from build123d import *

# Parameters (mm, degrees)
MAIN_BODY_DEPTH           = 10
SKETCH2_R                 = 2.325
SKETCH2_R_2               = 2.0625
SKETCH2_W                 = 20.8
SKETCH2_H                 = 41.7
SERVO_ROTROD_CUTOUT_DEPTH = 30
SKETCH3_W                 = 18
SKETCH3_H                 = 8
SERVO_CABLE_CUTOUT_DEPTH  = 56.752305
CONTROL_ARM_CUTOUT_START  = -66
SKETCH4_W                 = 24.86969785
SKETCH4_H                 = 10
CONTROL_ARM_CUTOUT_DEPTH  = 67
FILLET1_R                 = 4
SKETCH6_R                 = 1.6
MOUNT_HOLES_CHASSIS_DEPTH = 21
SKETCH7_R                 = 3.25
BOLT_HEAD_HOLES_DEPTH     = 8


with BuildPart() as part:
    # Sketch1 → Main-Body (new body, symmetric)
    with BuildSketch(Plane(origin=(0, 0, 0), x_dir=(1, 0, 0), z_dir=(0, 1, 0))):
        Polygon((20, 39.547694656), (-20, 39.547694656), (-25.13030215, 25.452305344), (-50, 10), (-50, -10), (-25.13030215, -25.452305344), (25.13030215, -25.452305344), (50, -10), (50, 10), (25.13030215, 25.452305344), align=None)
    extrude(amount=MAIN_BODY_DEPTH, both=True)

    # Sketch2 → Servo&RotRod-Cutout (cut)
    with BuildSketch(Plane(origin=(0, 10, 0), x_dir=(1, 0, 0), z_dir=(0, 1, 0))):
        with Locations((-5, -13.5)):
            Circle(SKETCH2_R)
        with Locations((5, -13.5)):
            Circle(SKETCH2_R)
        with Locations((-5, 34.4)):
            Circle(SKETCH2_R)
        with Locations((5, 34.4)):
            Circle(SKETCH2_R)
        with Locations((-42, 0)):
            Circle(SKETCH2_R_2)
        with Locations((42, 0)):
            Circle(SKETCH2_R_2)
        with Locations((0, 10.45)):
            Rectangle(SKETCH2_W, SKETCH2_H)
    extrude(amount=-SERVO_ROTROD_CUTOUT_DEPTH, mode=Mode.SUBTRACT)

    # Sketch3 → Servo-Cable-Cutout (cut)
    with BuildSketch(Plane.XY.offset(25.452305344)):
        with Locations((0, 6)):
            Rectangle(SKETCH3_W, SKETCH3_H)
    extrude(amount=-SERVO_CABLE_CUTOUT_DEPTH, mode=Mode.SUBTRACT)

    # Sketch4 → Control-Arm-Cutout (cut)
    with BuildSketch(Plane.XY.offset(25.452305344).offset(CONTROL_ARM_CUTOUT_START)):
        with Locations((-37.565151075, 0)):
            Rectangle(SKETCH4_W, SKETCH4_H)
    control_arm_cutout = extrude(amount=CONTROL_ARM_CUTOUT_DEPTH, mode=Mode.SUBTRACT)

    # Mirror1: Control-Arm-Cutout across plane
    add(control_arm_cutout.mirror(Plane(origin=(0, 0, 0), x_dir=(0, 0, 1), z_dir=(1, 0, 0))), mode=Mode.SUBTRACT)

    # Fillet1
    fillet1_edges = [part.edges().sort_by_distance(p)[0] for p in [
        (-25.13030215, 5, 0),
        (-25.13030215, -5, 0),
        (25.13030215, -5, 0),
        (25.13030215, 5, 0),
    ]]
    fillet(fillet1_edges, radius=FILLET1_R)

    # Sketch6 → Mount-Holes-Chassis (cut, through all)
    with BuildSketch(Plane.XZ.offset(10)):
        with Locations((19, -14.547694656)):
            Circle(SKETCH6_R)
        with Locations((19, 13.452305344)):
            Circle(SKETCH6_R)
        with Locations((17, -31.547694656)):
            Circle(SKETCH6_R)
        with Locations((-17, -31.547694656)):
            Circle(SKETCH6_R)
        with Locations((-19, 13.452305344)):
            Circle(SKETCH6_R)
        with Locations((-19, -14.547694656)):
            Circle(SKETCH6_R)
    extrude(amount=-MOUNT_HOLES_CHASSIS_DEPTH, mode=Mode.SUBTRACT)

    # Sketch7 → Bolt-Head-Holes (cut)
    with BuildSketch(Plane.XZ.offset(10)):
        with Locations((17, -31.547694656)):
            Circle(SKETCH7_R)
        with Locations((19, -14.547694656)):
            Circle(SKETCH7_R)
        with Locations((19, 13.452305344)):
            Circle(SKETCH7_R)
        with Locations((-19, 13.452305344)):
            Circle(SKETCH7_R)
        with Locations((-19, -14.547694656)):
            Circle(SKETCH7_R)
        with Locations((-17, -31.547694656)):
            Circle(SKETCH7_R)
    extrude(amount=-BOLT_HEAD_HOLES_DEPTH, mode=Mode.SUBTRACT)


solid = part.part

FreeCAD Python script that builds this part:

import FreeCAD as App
import Part
import Sketcher
from FreeCAD import Vector
Q = App.Units.Quantity


def edges_at(feature, points):
    """Names of the edges that pass closest to the given points."""
    edges = feature.Shape.Edges
    near = lambda p: min(range(len(edges)), key=lambda i: edges[i].distToShape(Part.Vertex(*p))[0])
    return sorted({f"Edge{near(p) + 1}" for p in points})


def add_polygon(sketch, points):
    """Adds a closed chain of lines whose ends are joined by coincident constraints."""
    first, n = sketch.GeometryCount, len(points)
    for a, b in zip(points, points[1:] + points[:1]):
        sketch.addGeometry(Part.LineSegment(App.Vector(*a, 0), App.Vector(*b, 0)), False)
    for i in range(n):
        sketch.addConstraint(Sketcher.Constraint("Coincident", first + i, 2, first + (i + 1) % n, 1))

doc = App.newDocument("Part")
body = doc.addObject("PartDesign::Body", "Body")

# Sketch on XZ plane
sketch1 = body.newObject("Sketcher::SketchObject", "Sketch")
sketch1.AttachmentSupport = (doc.getObject("XZ_Plane"), [""])
sketch1.MapMode = "FlatFace"
add_polygon(sketch1, [(20, -39.547695), (-20, -39.547695), (-25.130302, -25.452305), (-50, -10), (-50, 10), (-25.130302, 25.452305), (25.130302, 25.452305), (50, 10), (50, -10), (25.130302, -25.452305)])  # lines 0-9
sketch1.addConstraint([
    Sketcher.Constraint("Horizontal", 0),
    Sketcher.Constraint("Vertical", 3),
    Sketcher.Constraint("Horizontal", 5),
    Sketcher.Constraint("Vertical", 7),
    Sketcher.Constraint("Symmetric", 1, 2, 5, 2, -1, 1),
    Sketcher.Constraint("Symmetric", 2, 2, 6, 2, -1, 1),
    Sketcher.Constraint("Symmetric", 4, 2, 8, 2, -1, 1),
    Sketcher.Constraint("Parallel", 4, 8),
    Sketcher.Constraint("Horizontal", 3, 2, 6, 2),
    Sketcher.Constraint("Vertical", 1, 2, 4, 2),
    Sketcher.Constraint("Equal", 1, 9),
    Sketcher.Constraint("DistanceX", 0, 2, 0, 1, 40.0),
    Sketcher.Constraint("DistanceY", 3, 1, 3, 2, 20.0),
    Sketcher.Constraint("Angle", 1, Q("110 deg")),
    Sketcher.Constraint("Distance", 1, 15.0),
    Sketcher.Constraint("DistanceX", 2, 2, -1, 1, 50.0),
    Sketcher.Constraint("DistanceY", 0, 2, 4, 2, 65.0),
])
pad1 = body.newObject("PartDesign::Pad", "Pad")
pad1.Profile = sketch1
pad1.Length = 20
pad1.Midplane = True

# Sketch on XZ plane
sketch2 = body.newObject("Sketcher::SketchObject", "Sketch001")
sketch2.AttachmentSupport = (doc.getObject("XZ_Plane"), [""])
sketch2.MapMode = "FlatFace"
sketch2.AttachmentOffset = App.Placement(Vector(0, 0, -10), App.Rotation())
sketch2.addGeometry(Part.Circle(Vector(-5, 13.5, 0), Vector(0, 0, 1), 2.325), False)  # 0
sketch2.addGeometry(Part.Circle(Vector(5, 13.5, 0), Vector(0, 0, 1), 2.325), False)  # 1
sketch2.addGeometry(Part.Circle(Vector(-5, -34.4, 0), Vector(0, 0, 1), 2.325), False)  # 2
sketch2.addGeometry(Part.Circle(Vector(5, -34.4, 0), Vector(0, 0, 1), 2.325), False)  # 3
sketch2.addGeometry(Part.Circle(Vector(-42, 0, 0), Vector(0, 0, 1), 2.0625), False)  # 4
sketch2.addGeometry(Part.Circle(Vector(42, 0, 0), Vector(0, 0, 1), 2.0625), False)  # 5
add_polygon(sketch2, [(-10.4, -31.3), (-10.4, 10.4), (10.4, 10.4), (10.4, -31.3)])  # lines 6-9
sketch2.addConstraint([
    Sketcher.Constraint("Vertical", 6),
    Sketcher.Constraint("Horizontal", 7),
    Sketcher.Constraint("Vertical", 8),
    Sketcher.Constraint("Horizontal", 9),
    Sketcher.Constraint("Equal", 0, 1),
    Sketcher.Constraint("Equal", 1, 2),
    Sketcher.Constraint("Equal", 2, 3),
    Sketcher.Constraint("Equal", 4, 5),
    Sketcher.Constraint("Symmetric", 4, 3, 5, 3, -1, 1),
    Sketcher.Constraint("Symmetric", 0, 3, 1, 3, -2),
    Sketcher.Constraint("Symmetric", 2, 3, 3, 3, -2),
    Sketcher.Constraint("PointOnObject", 4, 3, -1),
    Sketcher.Constraint("Vertical", 0, 3, 2, 3),
    Sketcher.Constraint("Diameter", 0, 4.65),
    Sketcher.Constraint("Diameter", 4, 4.125),
    Sketcher.Constraint("DistanceX", 7, 1, 7, 2, 20.8),
    Sketcher.Constraint("DistanceY", 6, 1, 6, 2, 41.7),
    Sketcher.Constraint("DistanceX", 0, 3, -1, 1, 5.0),
    Sketcher.Constraint("DistanceX", 4, 3, -1, 1, 42.0),
    Sketcher.Constraint("DistanceY", -1, 1, 0, 3, 13.5),
    Sketcher.Constraint("DistanceY", 2, 3, -1, 1, 34.4),
    Sketcher.Constraint("DistanceX", 6, 2, -1, 1, 10.4),
    Sketcher.Constraint("DistanceY", -1, 1, 6, 2, 10.4),
])
pocket1 = body.newObject("PartDesign::Pocket", "Pocket")
pocket1.Profile = sketch2
pocket1.Length = 30
pocket1.Reversed = True

# Sketch on XY plane
sketch3 = body.newObject("Sketcher::SketchObject", "Sketch002")
sketch3.AttachmentSupport = (doc.getObject("XY_Plane"), [""])
sketch3.MapMode = "FlatFace"
sketch3.AttachmentOffset = App.Placement(Vector(0, 0, 25.452305), App.Rotation())
add_polygon(sketch3, [(-9, 10), (-9, 2), (9, 2), (9, 10)])  # lines 0-3
sketch3.addConstraint([
    Sketcher.Constraint("Vertical", 0),
    Sketcher.Constraint("Horizontal", 1),
    Sketcher.Constraint("Vertical", 2),
    Sketcher.Constraint("Horizontal", 3),
    Sketcher.Constraint("DistanceX", 1, 1, 1, 2, 18.0),
    Sketcher.Constraint("DistanceY", 0, 2, 0, 1, 8.0),
    Sketcher.Constraint("DistanceX", 0, 2, -1, 1, 9.0),
    Sketcher.Constraint("DistanceY", -1, 1, 0, 2, 2.0),
])
pocket2 = body.newObject("PartDesign::Pocket", "Pocket001")
pocket2.Profile = sketch3
pocket2.Length = 56.752305

# Sketch on XY plane
sketch4 = body.newObject("Sketcher::SketchObject", "Sketch003")
sketch4.AttachmentSupport = (doc.getObject("XY_Plane"), [""])
sketch4.MapMode = "FlatFace"
sketch4.AttachmentOffset = App.Placement(Vector(0, 0, -40.547695), App.Rotation())
add_polygon(sketch4, [(-50, 5), (-50, -5), (-25.130302, -5), (-25.130302, 5)])  # lines 0-3
sketch4.addConstraint([
    Sketcher.Constraint("Vertical", 0),
    Sketcher.Constraint("Horizontal", 1),
    Sketcher.Constraint("Vertical", 2),
    Sketcher.Constraint("Horizontal", 3),
    Sketcher.Constraint("DistanceY", 0, 2, 0, 1, 10.0),
    Sketcher.Constraint("DistanceX", 0, 2, -1, 1, 50.0),
    Sketcher.Constraint("DistanceY", 0, 2, -1, 1, 5.0),
    Sketcher.Constraint("DistanceX", 1, 1, 1, 2, 24.869698),
])
pocket3 = body.newObject("PartDesign::Pocket", "Pocket002")
pocket3.Profile = sketch4
pocket3.Length = 67
pocket3.Reversed = True
doc.recompute()

mirrored = body.newObject("PartDesign::Mirrored", "Mirrored")
mirrored.Originals = [pocket3]
mirrored.MirrorPlane = (doc.getObject("YZ_Plane"), [""])
body.Tip = mirrored
doc.recompute()

fillet = body.newObject("PartDesign::Fillet", "Fillet")
fillet.Base = (mirrored, edges_at(mirrored, [
    (-25.13, 5, 0),
    (-25.13, -5, 0),
    (25.13, -5, 0),
    (25.13, 5, 0),
]))
fillet.Radius = 4

# Sketch on XZ plane
sketch5 = body.newObject("Sketcher::SketchObject", "Sketch004")
sketch5.AttachmentSupport = (doc.getObject("XZ_Plane"), [""])
sketch5.MapMode = "FlatFace"
sketch5.AttachmentOffset = App.Placement(Vector(0, 0, 10), App.Rotation())
sketch5.addGeometry([
    Part.Circle(Vector(19, -14.547695, 0), Vector(0, 0, 1), 1.6),  # 0
    Part.Circle(Vector(19, 13.452305, 0), Vector(0, 0, 1), 1.6),  # 1
    Part.Circle(Vector(17, -31.547695, 0), Vector(0, 0, 1), 1.6),  # 2
    Part.Circle(Vector(-17, -31.547695, 0), Vector(0, 0, 1), 1.6),  # 3
    Part.Circle(Vector(-19, 13.452305, 0), Vector(0, 0, 1), 1.6),  # 4
    Part.Circle(Vector(-19, -14.547695, 0), Vector(0, 0, 1), 1.6),  # 5
], False)
sketch5.addConstraint([
    Sketcher.Constraint("Equal", 0, 1),
    Sketcher.Constraint("Equal", 1, 2),
    Sketcher.Constraint("Equal", 2, 3),
    Sketcher.Constraint("Equal", 3, 4),
    Sketcher.Constraint("Equal", 4, 5),
    Sketcher.Constraint("Symmetric", 2, 3, 3, 3, -2),
    Sketcher.Constraint("Symmetric", 1, 3, 4, 3, -2),
    Sketcher.Constraint("Symmetric", 0, 3, 5, 3, -2),
    Sketcher.Constraint("Vertical", 0, 3, 1, 3),
    Sketcher.Constraint("Diameter", 0, 3.2),
    Sketcher.Constraint("DistanceX", -1, 1, 0, 3, 19.0),
    Sketcher.Constraint("DistanceX", -1, 1, 2, 3, 17.0),
    Sketcher.Constraint("DistanceY", 0, 3, 1, 3, 28.0),
    Sketcher.Constraint("DistanceY", 2, 3, 0, 3, 17.0),
    Sketcher.Constraint("DistanceY", 0, 3, -1, 1, 14.547695),
])
pocket4 = body.newObject("PartDesign::Pocket", "Pocket003")
pocket4.Profile = sketch5
pocket4.Type = "ThroughAll"

# Sketch on XZ plane
sketch6 = body.newObject("Sketcher::SketchObject", "Sketch005")
sketch6.AttachmentSupport = (doc.getObject("XZ_Plane"), [""])
sketch6.MapMode = "FlatFace"
sketch6.AttachmentOffset = App.Placement(Vector(0, 0, 10), App.Rotation())
sketch6.addGeometry([
    Part.Circle(Vector(17, -31.547695, 0), Vector(0, 0, 1), 3.25),  # 0
    Part.Circle(Vector(19, -14.547695, 0), Vector(0, 0, 1), 3.25),  # 1
    Part.Circle(Vector(19, 13.452305, 0), Vector(0, 0, 1), 3.25),  # 2
    Part.Circle(Vector(-19, 13.452305, 0), Vector(0, 0, 1), 3.25),  # 3
    Part.Circle(Vector(-19, -14.547695, 0), Vector(0, 0, 1), 3.25),  # 4
    Part.Circle(Vector(-17, -31.547695, 0), Vector(0, 0, 1), 3.25),  # 5
], False)
sketch6.addConstraint([
    Sketcher.Constraint("Equal", 0, 1),
    Sketcher.Constraint("Equal", 1, 2),
    Sketcher.Constraint("Equal", 2, 3),
    Sketcher.Constraint("Equal", 3, 4),
    Sketcher.Constraint("Equal", 4, 5),
    Sketcher.Constraint("Symmetric", 2, 3, 3, 3, -2),
    Sketcher.Constraint("Symmetric", 1, 3, 4, 3, -2),
    Sketcher.Constraint("Symmetric", 0, 3, 5, 3, -2),
    Sketcher.Constraint("Vertical", 1, 3, 2, 3),
    Sketcher.Constraint("Diameter", 0, 6.5),
    Sketcher.Constraint("DistanceX", -1, 1, 0, 3, 17.0),
    Sketcher.Constraint("DistanceX", -1, 1, 1, 3, 19.0),
    Sketcher.Constraint("DistanceY", 0, 3, 1, 3, 17.0),
    Sketcher.Constraint("DistanceY", 1, 3, 2, 3, 28.0),
    Sketcher.Constraint("DistanceY", 0, 3, -1, 1, 31.547695),
])
pocket5 = body.newObject("PartDesign::Pocket", "Pocket004")
pocket5.Profile = sketch6
pocket5.Length = 8

doc.recompute()
